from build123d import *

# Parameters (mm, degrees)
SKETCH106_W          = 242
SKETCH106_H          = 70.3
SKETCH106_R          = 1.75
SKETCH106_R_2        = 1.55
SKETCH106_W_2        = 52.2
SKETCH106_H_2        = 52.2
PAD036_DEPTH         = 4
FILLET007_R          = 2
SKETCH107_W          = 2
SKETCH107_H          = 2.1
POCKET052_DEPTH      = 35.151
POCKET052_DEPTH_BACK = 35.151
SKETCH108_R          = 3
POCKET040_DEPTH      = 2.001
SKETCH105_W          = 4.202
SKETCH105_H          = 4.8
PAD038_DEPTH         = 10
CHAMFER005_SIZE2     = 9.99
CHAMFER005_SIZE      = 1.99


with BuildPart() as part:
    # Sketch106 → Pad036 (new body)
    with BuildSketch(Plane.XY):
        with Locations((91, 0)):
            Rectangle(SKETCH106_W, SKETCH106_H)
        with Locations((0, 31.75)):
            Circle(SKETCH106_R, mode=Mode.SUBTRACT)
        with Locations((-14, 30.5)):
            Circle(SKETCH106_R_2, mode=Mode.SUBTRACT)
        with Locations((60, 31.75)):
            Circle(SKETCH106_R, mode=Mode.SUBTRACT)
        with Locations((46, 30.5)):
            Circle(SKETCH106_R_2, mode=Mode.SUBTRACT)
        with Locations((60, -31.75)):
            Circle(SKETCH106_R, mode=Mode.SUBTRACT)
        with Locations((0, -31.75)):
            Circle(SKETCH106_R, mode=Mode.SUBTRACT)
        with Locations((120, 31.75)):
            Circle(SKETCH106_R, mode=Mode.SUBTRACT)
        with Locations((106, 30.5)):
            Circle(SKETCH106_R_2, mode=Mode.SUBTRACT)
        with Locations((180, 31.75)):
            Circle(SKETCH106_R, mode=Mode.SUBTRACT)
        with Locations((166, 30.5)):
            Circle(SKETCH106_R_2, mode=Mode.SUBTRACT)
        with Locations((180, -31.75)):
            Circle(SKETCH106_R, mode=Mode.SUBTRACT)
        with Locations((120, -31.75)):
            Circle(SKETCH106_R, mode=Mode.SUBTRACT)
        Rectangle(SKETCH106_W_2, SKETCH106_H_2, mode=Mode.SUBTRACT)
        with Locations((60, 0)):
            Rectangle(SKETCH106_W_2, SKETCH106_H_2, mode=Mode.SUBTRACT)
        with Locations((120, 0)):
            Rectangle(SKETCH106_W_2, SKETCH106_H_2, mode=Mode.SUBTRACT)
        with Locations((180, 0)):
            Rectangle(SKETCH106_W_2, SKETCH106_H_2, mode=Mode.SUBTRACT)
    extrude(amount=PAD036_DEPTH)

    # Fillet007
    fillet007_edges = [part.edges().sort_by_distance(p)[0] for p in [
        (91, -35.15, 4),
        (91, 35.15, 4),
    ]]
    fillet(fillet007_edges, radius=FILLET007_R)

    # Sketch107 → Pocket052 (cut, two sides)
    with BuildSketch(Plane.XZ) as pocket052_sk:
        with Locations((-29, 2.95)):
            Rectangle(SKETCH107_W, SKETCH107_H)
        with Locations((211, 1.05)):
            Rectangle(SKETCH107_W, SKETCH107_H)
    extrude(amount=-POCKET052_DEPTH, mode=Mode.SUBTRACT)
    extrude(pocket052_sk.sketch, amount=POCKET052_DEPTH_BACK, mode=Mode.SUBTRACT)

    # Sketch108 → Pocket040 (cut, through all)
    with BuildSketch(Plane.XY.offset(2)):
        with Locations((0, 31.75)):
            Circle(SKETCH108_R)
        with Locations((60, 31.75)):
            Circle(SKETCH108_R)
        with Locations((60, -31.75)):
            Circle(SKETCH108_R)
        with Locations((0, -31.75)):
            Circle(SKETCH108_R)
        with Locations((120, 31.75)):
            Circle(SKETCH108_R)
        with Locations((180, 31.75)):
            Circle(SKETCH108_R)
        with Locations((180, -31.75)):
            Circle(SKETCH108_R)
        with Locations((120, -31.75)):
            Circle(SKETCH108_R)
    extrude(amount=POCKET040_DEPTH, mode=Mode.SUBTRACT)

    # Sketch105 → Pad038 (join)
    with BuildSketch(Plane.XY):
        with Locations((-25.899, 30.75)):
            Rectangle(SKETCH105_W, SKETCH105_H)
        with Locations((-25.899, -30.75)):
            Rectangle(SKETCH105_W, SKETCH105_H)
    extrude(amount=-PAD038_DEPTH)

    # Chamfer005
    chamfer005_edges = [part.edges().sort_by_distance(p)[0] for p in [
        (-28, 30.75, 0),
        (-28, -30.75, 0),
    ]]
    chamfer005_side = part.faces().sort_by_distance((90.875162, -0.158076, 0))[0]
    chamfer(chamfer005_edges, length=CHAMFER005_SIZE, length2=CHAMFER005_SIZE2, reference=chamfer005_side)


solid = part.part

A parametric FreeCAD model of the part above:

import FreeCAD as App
import Part
import Sketcher


def edges_at(feature, points):
    """Names of the edges that pass closest to the given points."""
    edges = feature.Shape.Edges
    near = lambda p: min(range(len(edges)), key=lambda i: edges[i].distToShape(Part.Vertex(*p))[0])
    return sorted({f"Edge{near(p) + 1}" for p in points})


def add_polygon(sketch, points):
    """Adds a closed chain of lines whose ends are joined by coincident constraints."""
    first, n = sketch.GeometryCount, len(points)
    for a, b in zip(points, points[1:] + points[:1]):
        sketch.addGeometry(Part.LineSegment(App.Vector(*a, 0), App.Vector(*b, 0)), False)
    for i in range(n):
        sketch.addConstraint(Sketcher.Constraint("Coincident", first + i, 2, first + (i + 1) % n, 1))

doc = App.newDocument("Part")
params = doc.addObject("Spreadsheet::Sheet", "Params")
for row, (alias, value) in enumerate([
    ("sketch1_diameter", "3.5 mm"),
    ("sketch1_diameter2", "3.1 mm"),
    ("sketch1_width", "242 mm"),
    ("sketch1_width2", "52.2 mm"),
    ("sketch1_height", "70.3 mm"),
    ("pad1_length", "4 mm"),
    ("fillet_radius", "2 mm"),
    ("sketch2_width", "2 mm"),
    ("sketch2_height", "2.1 mm"),
    ("sketch3_diameter", "6 mm"),
    ("sketch4_height", "4.8 mm"),
    ("pad2_length", "10 mm"),
    ("chamfer_size", "1.99 mm"),
    ("chamfer_size2", "9.99 mm"),
], start=1):
    params.set(f"A{row}", alias)
    params.set(f"B{row}", "=" + value)
    params.setAlias(f"B{row}", alias)

body = doc.addObject("PartDesign::Body", "Body")

sketch1 = body.newObject("Sketcher::SketchObject", "Sketch")
sketch1.AttachmentSupport = (doc.getObject("XY_Plane"), [""])
sketch1.MapMode = "FlatFace"
add_polygon(sketch1, [(-30, 35.15), (-30, -35.15), (212, -35.15), (212, 35.15)])
sketch1.addGeometry(Part.Circle(App.Vector(0, -31.75, 0), App.Vector(0, 0, 1), 1.75), False)
sketch1.addGeometry(Part.Circle(App.Vector(60, -31.75, 0), App.Vector(0, 0, 1), 1.75), False)
sketch1.addGeometry(Part.Circle(App.Vector(120, -31.75, 0), App.Vector(0, 0, 1), 1.75), False)
sketch1.addGeometry(Part.Circle(App.Vector(180, -31.75, 0), App.Vector(0, 0, 1), 1.75), False)
add_polygon(sketch1, [(26.1, -26.1), (-26.1, -26.1), (-26.1, 26.1), (26.1, 26.1)])
add_polygon(sketch1, [(86.1, -26.1), (33.9, -26.1), (33.9, 26.1), (86.1, 26.1)])
sketch1.addGeometry(Part.Circle(App.Vector(-14, 30.5, 0), App.Vector(0, 0, 1), 1.55), False)
sketch1.addGeometry(Part.Circle(App.Vector(0, 31.75, 0), App.Vector(0, 0, 1), 1.75), False)
sketch1.addGeometry(Part.Circle(App.Vector(46, 30.5, 0), App.Vector(0, 0, 1), 1.55), False)
sketch1.addGeometry(Part.Circle(App.Vector(60, 31.75, 0), App.Vector(0, 0, 1), 1.75), False)
add_polygon(sketch1, [(146.1, -26.1), (93.9, -26.1), (93.9, 26.1), (146.1, 26.1)])
add_polygon(sketch1, [(206.1, -26.1), (153.9, -26.1), (153.9, 26.1), (206.1, 26.1)])
sketch1.addGeometry(Part.Circle(App.Vector(106, 30.5, 0), App.Vector(0, 0, 1), 1.55), False)
sketch1.addGeometry(Part.Circle(App.Vector(120, 31.75, 0), App.Vector(0, 0, 1), 1.75), False)
sketch1.addGeometry(Part.Circle(App.Vector(166, 30.5, 0), App.Vector(0, 0, 1), 1.55), False)
sketch1.addGeometry(Part.Circle(App.Vector(180, 31.75, 0), App.Vector(0, 0, 1), 1.75), False)
sketch1.addConstraint([
    Sketcher.Constraint("Vertical", 0),
    Sketcher.Constraint("Horizontal", 1),
    Sketcher.Constraint("Vertical", 2),
    Sketcher.Constraint("Horizontal", 3),
    Sketcher.Constraint("Horizontal", 8),
    Sketcher.Constraint("Vertical", 9),
    Sketcher.Constraint("Horizontal", 10),
    Sketcher.Constraint("Vertical", 11),
    Sketcher.Constraint("Horizontal", 12),
    Sketcher.Constraint("Vertical", 13),
    Sketcher.Constraint("Horizontal", 14),
    Sketcher.Constraint("Vertical", 15),
    Sketcher.Constraint("Horizontal", 20),
    Sketcher.Constraint("Vertical", 21),
    Sketcher.Constraint("Horizontal", 22),
    Sketcher.Constraint("Vertical", 23),
    Sketcher.Constraint("Horizontal", 24),
    Sketcher.Constraint("Vertical", 25),
    Sketcher.Constraint("Horizontal", 26),
    Sketcher.Constraint("Vertical", 27),
    Sketcher.Constraint("Equal", 4, 5),
    Sketcher.Constraint("Equal", 5, 6),
    Sketcher.Constraint("Equal", 6, 7),
    Sketcher.Constraint("Equal", 7, 17),
    Sketcher.Constraint("Equal", 16, 18),
    Sketcher.Constraint("Equal", 17, 19),
    Sketcher.Constraint("Equal", 18, 28),
    Sketcher.Constraint("Equal", 19, 29),
    Sketcher.Constraint("Equal", 28, 30),
    Sketcher.Constraint("Equal", 29, 31),
    Sketcher.Constraint("Symmetric", 4, 3, 17, 3, -1, 1),
    Sketcher.Constraint("Symmetric", 8, 2, 10, 2, -1, 1),
    Sketcher.Constraint("Symmetric", 5, 3, 19, 3, -1),
    Sketcher.Constraint("Symmetric", 6, 3, 29, 3, -1),
    Sketcher.Constraint("Symmetric", 7, 3, 31, 3, -1),
    Sketcher.Constraint("PointOnObject", 4, 3, -2),
    Sketcher.Constraint("Horizontal", 4, 3, 5, 3),
    Sketcher.Constraint("Horizontal", 5, 3, 6, 3),
    Sketcher.Constraint("Horizontal", 6, 3, 7, 3),
    Sketcher.Constraint("Horizontal", 16, 3, 18, 3),
    Sketcher.Constraint("Horizontal", 18, 3, 28, 3),
    Sketcher.Constraint("Horizontal", 28, 3, 30, 3),
    Sketcher.Constraint("Horizontal", 11, 2, 12, 2),
    Sketcher.Constraint("Horizontal", 10, 2, 13, 2),
    Sketcher.Constraint("Horizontal", 15, 2, 20, 2),
    Sketcher.Constraint("Horizontal", 14, 2, 21, 2),
    Sketcher.Constraint("Horizontal", 23, 2, 24, 2),
    Sketcher.Constraint("Horizontal", 22, 2, 25, 2),
    Sketcher.Constraint("Equal", 10, 12),
    Sketcher.Constraint("Equal", 14, 20),
    Sketcher.Constraint("Equal", 22, 24),
    Sketcher.Constraint("Equal", 26, 9),
    Sketcher.Constraint("Diameter", 4, 3.5),
    Sketcher.Constraint("Diameter", 16, 3.1),
    Sketcher.Constraint("DistanceX", 1, 1, 1, 2, 242.0),
    Sketcher.Constraint("DistanceX", 8, 2, 8, 1, 52.2),
    Sketcher.Constraint("DistanceY", 0, 2, 0, 1, 70.3),
    Sketcher.Constraint("DistanceX", -1, 1, 5, 3, 60.0),
    Sketcher.Constraint("DistanceX", -1, 1, 6, 3, 120.0),
    Sketcher.Constraint("DistanceX", -1, 1, 7, 3, 180.0),
    Sketcher.Constraint("DistanceX", 16, 3, -1, 1, 14.0),
    Sketcher.Constraint("DistanceX", -1, 1, 18, 3, 46.0),
    Sketcher.Constraint("DistanceX", -1, 1, 28, 3, 106.0),
    Sketcher.Constraint("DistanceX", -1, 1, 30, 3, 166.0),
    Sketcher.Constraint("DistanceX", 0, 2, -1, 1, 30.0),
    Sketcher.Constraint("DistanceX", 22, 2, 26, 2, 60.0),
    Sketcher.Constraint("DistanceY", -1, 1, 16, 3, 30.5),
    Sketcher.Constraint("DistanceX", -1, 1, 12, 2, 33.9),
    Sketcher.Constraint("DistanceX", -1, 1, 20, 2, 93.9),
    Sketcher.Constraint("DistanceY", 4, 3, 17, 3, 63.5),
    Sketcher.Constraint("DistanceY", 0, 2, 4, 3, 3.4),
])
sketch1.setExpression("Constraints[72]", "Params.sketch1_diameter")
sketch1.setExpression("Constraints[73]", "Params.sketch1_diameter2")
sketch1.setExpression("Constraints[74]", "Params.sketch1_width")
sketch1.setExpression("Constraints[75]", "Params.sketch1_width2")
sketch1.setExpression("Constraints[76]", "Params.sketch1_height")
pad1 = body.newObject("PartDesign::Pad", "Pad")
pad1.Profile = sketch1
pad1.setExpression("Length", "Params.pad1_length")
doc.recompute()

fillet = body.newObject("PartDesign::Fillet", "Fillet")
fillet.Base = (pad1, edges_at(pad1, [(91, -35.15, 4), (91, 35.15, 4)]))
fillet.setExpression("Radius", "Params.fillet_radius")

sketch2 = body.newObject("Sketcher::SketchObject", "Sketch001")
sketch2.AttachmentSupport = (doc.getObject("XZ_Plane"), [""])
sketch2.MapMode = "FlatFace"
add_polygon(sketch2, [(-30, 4), (-30, 1.9), (-28, 1.9), (-28, 4)])
add_polygon(sketch2, [(210, 2.1), (210, 0), (212, 0), (212, 2.1)])
sketch2.addConstraint([
    Sketcher.Constraint("Vertical", 0),
    Sketcher.Constraint("Horizontal", 1),
    Sketcher.Constraint("Vertical", 2),
    Sketcher.Constraint("Horizontal", 3),
    Sketcher.Constraint("Vertical", 4),
    Sketcher.Constraint("Horizontal", 5),
    Sketcher.Constraint("Vertical", 6),
    Sketcher.Constraint("Horizontal", 7),
    Sketcher.Constraint("PointOnObject", 4, 2, -1),
    Sketcher.Constraint("Equal", 3, 5),
    Sketcher.Constraint("Equal", 2, 4),
    Sketcher.Constraint("DistanceX", 1, 1, 1, 2, 2.0),
    Sketcher.Constraint("DistanceY", 0, 2, 0, 1, 2.1),
    Sketcher.Constraint("DistanceX", 0, 2, -1, 1, 30.0),
    Sketcher.Constraint("DistanceY", -1, 1, 2, 2, 4.0),
    Sketcher.Constraint("DistanceX", -1, 1, 4, 2, 210.0),
])
sketch2.setExpression("Constraints[19]", "Params.sketch2_width")
sketch2.setExpression("Constraints[20]", "Params.sketch2_height")
pocket1 = body.newObject("PartDesign::Pocket", "Pocket")
pocket1.Profile = sketch2
pocket1.Type = "ThroughAll"
pocket1.Midplane = True

sketch3 = body.newObject("Sketcher::SketchObject", "Sketch002")
sketch3.AttachmentSupport = (doc.getObject("XY_Plane"), [""])
sketch3.MapMode = "FlatFace"
sketch3.AttachmentOffset = App.Placement(App.Vector(0, 0, 2), App.Rotation())
sketch3.addGeometry([
    Part.Circle(App.Vector(0, 31.75, 0), App.Vector(0, 0, 1), 3),
    Part.Circle(App.Vector(60, 31.75, 0), App.Vector(0, 0, 1), 3),
    Part.Circle(App.Vector(60, -31.75, 0), App.Vector(0, 0, 1), 3),
    Part.Circle(App.Vector(0, -31.75, 0), App.Vector(0, 0, 1), 3),
    Part.Circle(App.Vector(120, 31.75, 0), App.Vector(0, 0, 1), 3),
    Part.Circle(App.Vector(180, 31.75, 0), App.Vector(0, 0, 1), 3),
    Part.Circle(App.Vector(180, -31.75, 0), App.Vector(0, 0, 1), 3),
    Part.Circle(App.Vector(120, -31.75, 0), App.Vector(0, 0, 1), 3),
], False)
sketch3.addConstraint([
    Sketcher.Constraint("Equal", 0, 1),
    Sketcher.Constraint("Equal", 1, 2),
    Sketcher.Constraint("Equal", 2, 3),
    Sketcher.Constraint("Equal", 3, 4),
    Sketcher.Constraint("Equal", 4, 5),
    Sketcher.Constraint("Equal", 5, 6),
    Sketcher.Constraint("Equal", 6, 7),
    Sketcher.Constraint("Symmetric", 0, 3, 3, 3, -1, 1),
    Sketcher.Constraint("Symmetric", 1, 3, 2, 3, -1),
    Sketcher.Constraint("Symmetric", 5, 3, 6, 3, -1),
    Sketcher.Constraint("Symmetric", 4, 3, 7, 3, -1),
    Sketcher.Constraint("PointOnObject", 0, 3, -2),
    Sketcher.Constraint("Horizontal", 0, 3, 1, 3),
    Sketcher.Constraint("Horizontal", 1, 3, 4, 3),
    Sketcher.Constraint("Horizontal", 4, 3, 5, 3),
    Sketcher.Constraint("Diameter", 0, 6.0),
    Sketcher.Constraint("DistanceX", -1, 1, 1, 3, 60.0),
    Sketcher.Constraint("DistanceX", -1, 1, 4, 3, 120.0),
    Sketcher.Constraint("DistanceX", -1, 1, 5, 3, 180.0),
    Sketcher.Constraint("DistanceY", 2, 3, 1, 3, 63.5),
])
sketch3.setExpression("Constraints[15]", "Params.sketch3_diameter")
pocket2 = body.newObject("PartDesign::Pocket", "Pocket001")
pocket2.Profile = sketch3
pocket2.Type = "ThroughAll"
pocket2.Reversed = True

sketch4 = body.newObject("Sketcher::SketchObject", "Sketch003")
sketch4.AttachmentSupport = (doc.getObject("XY_Plane"), [""])
sketch4.MapMode = "FlatFace"
add_polygon(sketch4, [(-28, 33.15), (-28, 28.35), (-23.798, 28.35), (-23.798, 33.15)])
add_polygon(sketch4, [(-28, -28.35), (-28, -33.15), (-23.798, -33.15), (-23.798, -28.35)])
sketch4.addConstraint([
    Sketcher.Constraint("Vertical", 0),
    Sketcher.Constraint("Horizontal", 1),
    Sketcher.Constraint("Vertical", 2),
    Sketcher.Constraint("Horizontal", 3),
    Sketcher.Constraint("Vertical", 4),
    Sketcher.Constraint("Horizontal", 5),
    Sketcher.Constraint("Vertical", 6),
    Sketcher.Constraint("Horizontal", 7),
    Sketcher.Constraint("Symmetric", 3, 2, 4, 2, -1),
    Sketcher.Constraint("Symmetric", 1, 2, 6, 2, -1),
    Sketcher.Constraint("DistanceY", 0, 2, 0, 1, 4.8),
    Sketcher.Constraint("DistanceX", 0, 2, -1, 1, 28.0),
    Sketcher.Constraint("DistanceY", 4, 2, 0, 2, 61.5),
    Sketcher.Constraint("DistanceX", 1, 1, 1, 2, 4.202),
])
sketch4.setExpression("Constraints[18]", "Params.sketch4_height")
pad2 = body.newObject("PartDesign::Pad", "Pad001")
pad2.Profile = sketch4
pad2.setExpression("Length", "Params.pad2_length")
pad2.Reversed = True
doc.recompute()

chamfer = body.newObject("PartDesign::Chamfer", "Chamfer")
chamfer.Base = (pad2, edges_at(pad2, [(-28, 30.75, 0), (-28, -30.75, 0)]))
chamfer.ChamferType = "Two distances"
chamfer.setExpression("Size", "Params.chamfer_size")
chamfer.setExpression("Size2", "Params.chamfer_size2")

doc.recompute()
